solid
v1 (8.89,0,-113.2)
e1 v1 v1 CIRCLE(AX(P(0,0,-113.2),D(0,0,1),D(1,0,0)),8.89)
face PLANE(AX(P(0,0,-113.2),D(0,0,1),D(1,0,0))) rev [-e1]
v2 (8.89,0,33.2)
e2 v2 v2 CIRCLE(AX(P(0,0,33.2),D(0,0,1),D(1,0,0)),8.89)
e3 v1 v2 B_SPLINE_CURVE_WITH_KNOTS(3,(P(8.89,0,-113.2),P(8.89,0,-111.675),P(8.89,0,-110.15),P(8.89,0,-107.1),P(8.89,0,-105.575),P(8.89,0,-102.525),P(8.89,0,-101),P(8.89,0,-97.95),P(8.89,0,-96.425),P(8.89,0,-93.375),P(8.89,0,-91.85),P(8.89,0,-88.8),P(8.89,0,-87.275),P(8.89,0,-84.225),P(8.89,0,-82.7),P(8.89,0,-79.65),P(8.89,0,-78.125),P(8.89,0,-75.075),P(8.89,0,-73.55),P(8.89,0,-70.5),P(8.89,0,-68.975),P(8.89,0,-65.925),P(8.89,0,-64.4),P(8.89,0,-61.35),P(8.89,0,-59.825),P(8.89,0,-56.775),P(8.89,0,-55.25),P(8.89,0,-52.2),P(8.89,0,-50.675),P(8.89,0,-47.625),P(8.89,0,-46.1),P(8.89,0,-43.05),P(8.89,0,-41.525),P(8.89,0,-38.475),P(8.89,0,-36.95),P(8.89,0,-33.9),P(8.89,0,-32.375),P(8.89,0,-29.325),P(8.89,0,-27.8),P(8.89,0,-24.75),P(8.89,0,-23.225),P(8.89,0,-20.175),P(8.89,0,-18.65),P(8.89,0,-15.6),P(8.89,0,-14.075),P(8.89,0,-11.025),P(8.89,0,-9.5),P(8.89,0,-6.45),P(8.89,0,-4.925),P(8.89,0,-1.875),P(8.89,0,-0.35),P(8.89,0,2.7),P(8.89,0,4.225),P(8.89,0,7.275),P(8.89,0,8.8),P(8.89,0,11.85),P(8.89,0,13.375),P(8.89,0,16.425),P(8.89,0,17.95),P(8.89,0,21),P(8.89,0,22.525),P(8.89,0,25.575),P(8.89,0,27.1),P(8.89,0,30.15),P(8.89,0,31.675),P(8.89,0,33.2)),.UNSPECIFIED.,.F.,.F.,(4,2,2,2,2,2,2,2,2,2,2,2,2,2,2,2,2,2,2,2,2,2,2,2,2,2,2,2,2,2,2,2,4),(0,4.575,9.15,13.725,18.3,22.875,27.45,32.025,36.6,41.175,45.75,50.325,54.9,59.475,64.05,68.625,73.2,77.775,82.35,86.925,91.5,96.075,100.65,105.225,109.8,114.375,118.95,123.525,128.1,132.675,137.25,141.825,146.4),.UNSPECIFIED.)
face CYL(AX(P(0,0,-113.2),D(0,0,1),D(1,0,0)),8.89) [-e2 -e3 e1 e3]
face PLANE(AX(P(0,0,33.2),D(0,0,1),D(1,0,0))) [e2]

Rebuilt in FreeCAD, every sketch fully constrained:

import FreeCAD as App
import Part
import Sketcher

V = App.Vector
Q = App.Units.Quantity

doc = App.newDocument("Part")
body = doc.addObject("PartDesign::Body", "Body")

# Sketch on XY plane
sketch1 = body.newObject("Sketcher::SketchObject", "Sketch")
sketch1.AttachmentSupport = (doc.getObject("XY_Plane"), [""])
sketch1.MapMode = "FlatFace"
sketch1.addGeometry(Part.Circle(V(0, 0, 0), V(0, 0, 1), 9), False)
sketch1.addConstraint(Sketcher.Constraint("Coincident", 0, 3, -1, 1))
sketch1.addConstraint(Sketcher.Constraint("Diameter", 0, Q("17.78 mm")))
pad1 = body.newObject("PartDesign::Pad", "Pad")
pad1.Profile = sketch1
pad1.Type = "TwoLengths"
pad1.Length = 33.2
pad1.Length2 = 113.2

doc.recompute()
